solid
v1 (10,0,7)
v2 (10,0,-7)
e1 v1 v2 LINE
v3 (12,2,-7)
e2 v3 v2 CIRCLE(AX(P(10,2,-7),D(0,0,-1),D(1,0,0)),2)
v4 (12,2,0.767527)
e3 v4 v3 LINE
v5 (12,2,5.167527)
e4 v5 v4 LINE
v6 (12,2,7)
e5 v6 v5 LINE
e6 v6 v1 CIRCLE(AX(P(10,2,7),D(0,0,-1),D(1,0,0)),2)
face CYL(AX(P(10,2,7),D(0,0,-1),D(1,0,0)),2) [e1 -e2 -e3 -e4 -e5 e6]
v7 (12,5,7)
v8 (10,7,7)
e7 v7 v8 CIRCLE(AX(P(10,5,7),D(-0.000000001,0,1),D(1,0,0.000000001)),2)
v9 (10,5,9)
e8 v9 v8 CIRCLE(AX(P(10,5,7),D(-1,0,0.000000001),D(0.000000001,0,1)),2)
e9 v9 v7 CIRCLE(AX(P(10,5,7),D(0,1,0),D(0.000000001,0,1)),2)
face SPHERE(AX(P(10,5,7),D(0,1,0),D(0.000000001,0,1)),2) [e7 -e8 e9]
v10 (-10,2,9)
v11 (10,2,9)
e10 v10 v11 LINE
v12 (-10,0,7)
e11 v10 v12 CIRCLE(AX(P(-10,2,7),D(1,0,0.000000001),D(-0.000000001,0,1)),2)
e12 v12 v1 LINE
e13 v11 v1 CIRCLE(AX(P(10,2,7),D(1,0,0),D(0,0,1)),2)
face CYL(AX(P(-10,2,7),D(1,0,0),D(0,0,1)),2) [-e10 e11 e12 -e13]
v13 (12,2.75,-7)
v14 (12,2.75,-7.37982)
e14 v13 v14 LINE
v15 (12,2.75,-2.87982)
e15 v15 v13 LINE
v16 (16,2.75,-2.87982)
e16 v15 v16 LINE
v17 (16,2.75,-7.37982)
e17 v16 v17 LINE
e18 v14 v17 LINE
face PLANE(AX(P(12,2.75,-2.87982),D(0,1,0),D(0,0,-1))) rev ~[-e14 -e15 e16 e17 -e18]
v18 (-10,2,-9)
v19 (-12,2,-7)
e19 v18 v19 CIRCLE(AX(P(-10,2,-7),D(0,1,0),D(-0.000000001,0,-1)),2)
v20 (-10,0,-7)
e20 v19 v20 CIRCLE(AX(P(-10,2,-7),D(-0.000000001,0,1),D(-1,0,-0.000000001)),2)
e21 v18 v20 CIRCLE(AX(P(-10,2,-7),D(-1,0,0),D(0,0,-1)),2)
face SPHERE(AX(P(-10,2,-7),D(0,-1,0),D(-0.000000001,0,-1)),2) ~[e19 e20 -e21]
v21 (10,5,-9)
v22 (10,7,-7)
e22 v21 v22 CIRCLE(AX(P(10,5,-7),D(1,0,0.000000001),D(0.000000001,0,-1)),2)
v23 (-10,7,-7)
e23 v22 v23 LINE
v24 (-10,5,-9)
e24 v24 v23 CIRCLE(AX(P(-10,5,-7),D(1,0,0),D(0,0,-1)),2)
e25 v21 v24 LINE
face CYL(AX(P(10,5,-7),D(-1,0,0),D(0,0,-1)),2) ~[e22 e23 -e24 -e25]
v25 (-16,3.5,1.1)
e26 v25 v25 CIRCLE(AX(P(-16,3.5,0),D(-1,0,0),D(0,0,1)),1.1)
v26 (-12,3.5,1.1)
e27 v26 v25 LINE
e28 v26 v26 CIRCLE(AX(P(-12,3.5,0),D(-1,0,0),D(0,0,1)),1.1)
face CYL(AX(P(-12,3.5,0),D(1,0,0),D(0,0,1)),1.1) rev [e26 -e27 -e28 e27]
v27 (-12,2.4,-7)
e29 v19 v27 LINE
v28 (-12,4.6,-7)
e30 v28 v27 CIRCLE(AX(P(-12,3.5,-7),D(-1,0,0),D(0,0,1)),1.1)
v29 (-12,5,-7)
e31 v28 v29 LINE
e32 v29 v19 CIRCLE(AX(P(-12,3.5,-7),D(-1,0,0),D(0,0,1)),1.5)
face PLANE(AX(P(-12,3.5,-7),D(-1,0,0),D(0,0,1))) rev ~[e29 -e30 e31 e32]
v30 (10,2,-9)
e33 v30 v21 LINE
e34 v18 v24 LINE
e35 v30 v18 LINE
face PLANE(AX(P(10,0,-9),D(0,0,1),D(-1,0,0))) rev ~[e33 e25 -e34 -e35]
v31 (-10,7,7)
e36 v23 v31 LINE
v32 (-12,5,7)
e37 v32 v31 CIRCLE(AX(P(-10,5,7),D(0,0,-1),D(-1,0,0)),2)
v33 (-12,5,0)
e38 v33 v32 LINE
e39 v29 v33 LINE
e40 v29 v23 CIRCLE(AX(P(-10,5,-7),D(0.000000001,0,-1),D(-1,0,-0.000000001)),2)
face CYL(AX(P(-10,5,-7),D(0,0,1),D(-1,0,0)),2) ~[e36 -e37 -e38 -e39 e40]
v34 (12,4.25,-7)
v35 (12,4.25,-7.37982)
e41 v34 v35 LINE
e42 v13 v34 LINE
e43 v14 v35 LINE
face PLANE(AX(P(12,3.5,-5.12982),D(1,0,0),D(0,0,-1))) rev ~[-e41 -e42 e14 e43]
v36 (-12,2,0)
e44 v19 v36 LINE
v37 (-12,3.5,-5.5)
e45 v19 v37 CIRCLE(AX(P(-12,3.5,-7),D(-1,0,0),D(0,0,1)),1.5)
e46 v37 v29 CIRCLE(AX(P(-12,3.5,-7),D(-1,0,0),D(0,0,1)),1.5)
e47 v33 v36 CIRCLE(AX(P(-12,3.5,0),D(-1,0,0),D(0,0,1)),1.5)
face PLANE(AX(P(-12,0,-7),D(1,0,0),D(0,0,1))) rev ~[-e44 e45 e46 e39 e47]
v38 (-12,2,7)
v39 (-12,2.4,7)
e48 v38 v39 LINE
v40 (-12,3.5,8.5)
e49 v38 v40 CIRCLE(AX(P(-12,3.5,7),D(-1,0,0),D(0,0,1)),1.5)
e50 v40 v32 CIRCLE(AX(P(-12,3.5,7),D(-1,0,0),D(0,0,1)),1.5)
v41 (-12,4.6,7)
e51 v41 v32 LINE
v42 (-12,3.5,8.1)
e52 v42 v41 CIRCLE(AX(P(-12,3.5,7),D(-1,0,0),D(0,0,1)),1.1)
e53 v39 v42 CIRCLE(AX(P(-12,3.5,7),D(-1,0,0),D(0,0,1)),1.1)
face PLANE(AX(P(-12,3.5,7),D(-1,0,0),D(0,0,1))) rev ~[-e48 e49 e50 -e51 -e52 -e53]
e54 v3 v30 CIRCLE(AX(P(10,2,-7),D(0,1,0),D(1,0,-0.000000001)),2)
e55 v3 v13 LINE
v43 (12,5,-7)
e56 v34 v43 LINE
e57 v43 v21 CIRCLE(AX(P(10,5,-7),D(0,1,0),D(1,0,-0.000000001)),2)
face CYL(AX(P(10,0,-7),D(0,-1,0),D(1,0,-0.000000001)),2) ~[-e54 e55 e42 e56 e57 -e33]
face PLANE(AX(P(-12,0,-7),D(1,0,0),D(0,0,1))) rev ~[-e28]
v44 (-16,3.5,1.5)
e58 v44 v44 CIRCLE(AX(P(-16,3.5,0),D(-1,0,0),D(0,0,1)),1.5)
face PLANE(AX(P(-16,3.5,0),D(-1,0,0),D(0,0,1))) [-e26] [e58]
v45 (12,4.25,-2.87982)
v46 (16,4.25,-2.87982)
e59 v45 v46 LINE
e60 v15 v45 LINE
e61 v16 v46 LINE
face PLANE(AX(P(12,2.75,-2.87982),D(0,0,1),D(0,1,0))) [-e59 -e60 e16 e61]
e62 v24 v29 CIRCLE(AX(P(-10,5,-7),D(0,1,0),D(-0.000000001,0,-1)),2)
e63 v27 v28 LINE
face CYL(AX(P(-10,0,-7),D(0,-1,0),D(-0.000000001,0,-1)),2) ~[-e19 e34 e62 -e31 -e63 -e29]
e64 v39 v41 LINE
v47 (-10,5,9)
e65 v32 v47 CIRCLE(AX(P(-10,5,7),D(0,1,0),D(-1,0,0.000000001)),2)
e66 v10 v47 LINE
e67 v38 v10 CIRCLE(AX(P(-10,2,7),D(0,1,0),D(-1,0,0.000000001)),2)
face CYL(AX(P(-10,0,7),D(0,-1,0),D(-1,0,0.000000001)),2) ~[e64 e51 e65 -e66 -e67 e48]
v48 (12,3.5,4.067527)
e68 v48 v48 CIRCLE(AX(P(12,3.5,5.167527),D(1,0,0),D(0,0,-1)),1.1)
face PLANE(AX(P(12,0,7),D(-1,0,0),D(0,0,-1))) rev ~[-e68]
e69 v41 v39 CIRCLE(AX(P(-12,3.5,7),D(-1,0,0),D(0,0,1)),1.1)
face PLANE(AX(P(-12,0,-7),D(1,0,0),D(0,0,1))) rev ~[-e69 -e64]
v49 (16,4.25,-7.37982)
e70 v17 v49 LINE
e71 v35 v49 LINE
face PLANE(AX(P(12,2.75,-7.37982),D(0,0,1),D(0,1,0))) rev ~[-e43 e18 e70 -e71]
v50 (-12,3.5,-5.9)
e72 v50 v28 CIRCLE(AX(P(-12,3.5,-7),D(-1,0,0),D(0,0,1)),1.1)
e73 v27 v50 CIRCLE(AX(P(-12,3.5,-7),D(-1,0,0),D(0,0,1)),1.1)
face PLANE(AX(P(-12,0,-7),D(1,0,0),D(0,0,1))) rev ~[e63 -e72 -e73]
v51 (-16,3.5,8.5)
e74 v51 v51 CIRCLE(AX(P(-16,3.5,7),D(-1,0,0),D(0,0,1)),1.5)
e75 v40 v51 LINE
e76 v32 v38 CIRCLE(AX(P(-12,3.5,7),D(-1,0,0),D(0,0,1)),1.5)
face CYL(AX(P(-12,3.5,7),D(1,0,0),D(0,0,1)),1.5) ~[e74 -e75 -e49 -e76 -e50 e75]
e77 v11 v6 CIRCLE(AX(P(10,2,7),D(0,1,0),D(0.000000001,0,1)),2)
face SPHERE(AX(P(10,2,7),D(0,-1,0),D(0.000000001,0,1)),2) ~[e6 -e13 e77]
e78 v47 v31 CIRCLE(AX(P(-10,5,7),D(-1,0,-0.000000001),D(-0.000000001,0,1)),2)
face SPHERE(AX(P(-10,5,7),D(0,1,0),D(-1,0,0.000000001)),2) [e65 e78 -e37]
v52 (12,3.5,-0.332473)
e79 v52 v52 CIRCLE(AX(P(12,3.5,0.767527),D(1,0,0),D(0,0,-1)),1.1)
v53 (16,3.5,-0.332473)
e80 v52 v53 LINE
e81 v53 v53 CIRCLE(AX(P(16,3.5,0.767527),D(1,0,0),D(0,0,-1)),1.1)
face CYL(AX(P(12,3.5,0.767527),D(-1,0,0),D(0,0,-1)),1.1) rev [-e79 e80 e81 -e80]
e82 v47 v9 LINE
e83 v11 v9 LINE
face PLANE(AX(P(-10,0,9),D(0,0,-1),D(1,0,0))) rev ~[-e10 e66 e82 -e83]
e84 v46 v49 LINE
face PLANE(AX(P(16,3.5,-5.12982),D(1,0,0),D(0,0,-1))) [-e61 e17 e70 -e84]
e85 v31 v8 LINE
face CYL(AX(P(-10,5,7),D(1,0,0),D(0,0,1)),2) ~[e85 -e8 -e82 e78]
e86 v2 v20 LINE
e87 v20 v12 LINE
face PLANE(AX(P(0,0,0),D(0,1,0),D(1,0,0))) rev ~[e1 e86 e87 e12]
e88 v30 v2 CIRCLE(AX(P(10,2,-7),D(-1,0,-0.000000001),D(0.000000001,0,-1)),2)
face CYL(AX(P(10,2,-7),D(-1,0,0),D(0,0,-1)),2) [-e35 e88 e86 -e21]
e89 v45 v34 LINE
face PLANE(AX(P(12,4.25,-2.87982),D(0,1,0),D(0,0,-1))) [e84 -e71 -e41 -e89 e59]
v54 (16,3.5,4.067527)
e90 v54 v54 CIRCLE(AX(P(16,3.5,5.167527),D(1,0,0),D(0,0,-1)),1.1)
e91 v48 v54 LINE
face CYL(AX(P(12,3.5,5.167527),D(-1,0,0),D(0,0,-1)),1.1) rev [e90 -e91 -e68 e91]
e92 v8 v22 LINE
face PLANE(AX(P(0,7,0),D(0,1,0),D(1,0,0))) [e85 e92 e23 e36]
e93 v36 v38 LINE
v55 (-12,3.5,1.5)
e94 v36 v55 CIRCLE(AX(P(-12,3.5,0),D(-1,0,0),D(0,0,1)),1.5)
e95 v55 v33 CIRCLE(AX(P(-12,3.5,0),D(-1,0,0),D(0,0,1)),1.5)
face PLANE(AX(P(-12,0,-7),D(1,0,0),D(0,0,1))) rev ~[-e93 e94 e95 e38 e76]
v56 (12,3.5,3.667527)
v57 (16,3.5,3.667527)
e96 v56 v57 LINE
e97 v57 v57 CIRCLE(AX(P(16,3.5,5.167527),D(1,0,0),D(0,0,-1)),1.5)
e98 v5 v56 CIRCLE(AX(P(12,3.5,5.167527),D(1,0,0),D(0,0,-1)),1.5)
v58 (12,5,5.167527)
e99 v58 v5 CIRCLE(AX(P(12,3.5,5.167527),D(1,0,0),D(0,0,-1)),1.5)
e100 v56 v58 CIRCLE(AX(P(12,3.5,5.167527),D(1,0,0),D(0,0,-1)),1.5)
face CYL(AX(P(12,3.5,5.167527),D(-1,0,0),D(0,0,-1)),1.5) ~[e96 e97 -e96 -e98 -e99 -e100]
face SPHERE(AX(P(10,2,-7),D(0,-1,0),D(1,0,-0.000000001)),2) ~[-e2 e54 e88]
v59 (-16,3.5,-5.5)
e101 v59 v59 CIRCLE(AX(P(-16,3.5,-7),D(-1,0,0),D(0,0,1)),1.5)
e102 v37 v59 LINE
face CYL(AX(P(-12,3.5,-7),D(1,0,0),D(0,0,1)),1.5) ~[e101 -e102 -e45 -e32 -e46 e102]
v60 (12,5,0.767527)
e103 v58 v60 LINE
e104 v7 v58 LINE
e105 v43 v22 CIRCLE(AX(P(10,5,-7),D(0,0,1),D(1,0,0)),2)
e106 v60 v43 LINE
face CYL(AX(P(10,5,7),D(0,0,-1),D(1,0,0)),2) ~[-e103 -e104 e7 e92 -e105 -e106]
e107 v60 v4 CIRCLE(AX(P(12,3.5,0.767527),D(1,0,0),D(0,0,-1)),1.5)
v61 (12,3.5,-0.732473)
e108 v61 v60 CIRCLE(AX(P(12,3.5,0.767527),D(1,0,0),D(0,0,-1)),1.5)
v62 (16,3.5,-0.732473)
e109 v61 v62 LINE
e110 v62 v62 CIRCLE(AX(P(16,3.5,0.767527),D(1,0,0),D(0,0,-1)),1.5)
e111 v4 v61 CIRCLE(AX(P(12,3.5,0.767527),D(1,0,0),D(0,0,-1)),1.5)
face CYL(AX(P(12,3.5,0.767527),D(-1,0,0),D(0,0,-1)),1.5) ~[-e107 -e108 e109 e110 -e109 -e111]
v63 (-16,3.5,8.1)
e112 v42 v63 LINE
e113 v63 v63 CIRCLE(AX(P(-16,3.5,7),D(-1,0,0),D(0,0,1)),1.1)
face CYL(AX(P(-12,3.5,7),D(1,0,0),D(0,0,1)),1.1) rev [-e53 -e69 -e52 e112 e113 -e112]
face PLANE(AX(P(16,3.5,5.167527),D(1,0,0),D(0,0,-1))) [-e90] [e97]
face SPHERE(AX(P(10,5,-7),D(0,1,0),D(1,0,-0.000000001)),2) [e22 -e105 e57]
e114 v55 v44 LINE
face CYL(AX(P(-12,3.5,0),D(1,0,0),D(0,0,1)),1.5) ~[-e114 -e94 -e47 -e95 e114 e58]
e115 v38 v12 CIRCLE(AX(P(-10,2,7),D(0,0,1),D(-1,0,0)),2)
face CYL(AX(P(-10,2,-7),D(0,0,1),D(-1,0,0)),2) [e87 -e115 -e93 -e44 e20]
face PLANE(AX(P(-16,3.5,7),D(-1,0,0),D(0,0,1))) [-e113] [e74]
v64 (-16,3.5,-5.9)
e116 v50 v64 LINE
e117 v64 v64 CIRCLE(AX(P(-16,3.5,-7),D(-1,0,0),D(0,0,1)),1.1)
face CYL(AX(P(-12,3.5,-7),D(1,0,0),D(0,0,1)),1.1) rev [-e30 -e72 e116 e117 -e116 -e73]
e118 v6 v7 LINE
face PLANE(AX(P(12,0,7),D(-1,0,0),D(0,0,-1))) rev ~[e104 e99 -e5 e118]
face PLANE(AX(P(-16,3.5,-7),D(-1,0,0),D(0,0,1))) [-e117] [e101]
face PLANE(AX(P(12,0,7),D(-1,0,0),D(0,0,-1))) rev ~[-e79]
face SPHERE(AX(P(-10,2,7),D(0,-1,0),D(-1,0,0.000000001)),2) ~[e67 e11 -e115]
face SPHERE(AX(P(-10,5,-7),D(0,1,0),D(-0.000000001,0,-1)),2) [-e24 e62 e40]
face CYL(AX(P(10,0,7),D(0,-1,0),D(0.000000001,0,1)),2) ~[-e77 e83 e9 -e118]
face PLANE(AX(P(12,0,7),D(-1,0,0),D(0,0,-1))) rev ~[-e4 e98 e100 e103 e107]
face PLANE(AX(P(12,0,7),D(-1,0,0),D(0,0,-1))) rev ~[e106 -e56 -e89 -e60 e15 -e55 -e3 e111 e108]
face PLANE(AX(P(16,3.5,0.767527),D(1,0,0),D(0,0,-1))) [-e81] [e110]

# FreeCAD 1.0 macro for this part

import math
import FreeCAD as App
import Part
import Sketcher
Q = App.Units.Quantity


def edges_at(feature, points):
    """Names of the edges that pass closest to the given points."""
    edges = feature.Shape.Edges
    near = lambda p: min(range(len(edges)), key=lambda i: edges[i].distToShape(Part.Vertex(*p))[0])
    return sorted({f"Edge{near(p) + 1}" for p in points})

doc = App.newDocument("Part")
body = doc.addObject("PartDesign::Body", "Body")

# Sketch on XZ plane
sketch1 = body.newObject("Sketcher::SketchObject", "Sketch")
sketch1.AttachmentSupport = (doc.getObject("XZ_Plane"), [""])
sketch1.MapMode = "FlatFace"
sketch1.addGeometry([
    Part.LineSegment(App.Vector(-10, 9, 0), App.Vector(10, 9, 0)),  # 0
    Part.ArcOfCircle(Part.Circle(App.Vector(10, 7, 0), App.Vector(0, 0, 1), 2), math.radians(0), math.radians(90)),  # 1
    Part.LineSegment(App.Vector(12, 7, 0), App.Vector(12, -7, 0)),  # 2
    Part.ArcOfCircle(Part.Circle(App.Vector(10, -7, 0), App.Vector(0, 0, 1), 2), math.radians(-90), math.radians(0)),  # 3
    Part.LineSegment(App.Vector(10, -9, 0), App.Vector(-10, -9, 0)),  # 4
    Part.ArcOfCircle(Part.Circle(App.Vector(-10, -7, 0), App.Vector(0, 0, 1), 2), math.radians(-180), math.radians(-90)),  # 5
    Part.LineSegment(App.Vector(-12, -7, 0), App.Vector(-12, 7, 0)),  # 6
    Part.ArcOfCircle(Part.Circle(App.Vector(-10, 7, 0), App.Vector(0, 0, 1), 2), math.radians(90), math.radians(180)),  # 7
], False)
sketch1.addConstraint([
    Sketcher.Constraint("Tangent", 0, 2, 1, 2),
    Sketcher.Constraint("Tangent", 1, 1, 2, 1),
    Sketcher.Constraint("Tangent", 2, 2, 3, 2),
    Sketcher.Constraint("Tangent", 3, 1, 4, 1),
    Sketcher.Constraint("Tangent", 4, 2, 5, 2),
    Sketcher.Constraint("Tangent", 5, 1, 6, 1),
    Sketcher.Constraint("Tangent", 6, 2, 7, 2),
    Sketcher.Constraint("Tangent", 7, 1, 0, 1),
    Sketcher.Constraint("Horizontal", 0),
    Sketcher.Constraint("Vertical", 2),
    Sketcher.Constraint("Horizontal", 4),
    Sketcher.Constraint("Vertical", 6),
    Sketcher.Constraint("Equal", 1, 3),
    Sketcher.Constraint("Equal", 3, 5),
    Sketcher.Constraint("Equal", 5, 7),
    Sketcher.Constraint("Symmetric", 1, 3, 5, 3, -1, 1),
    Sketcher.Constraint("Radius", 1, Q("2 mm")),
    Sketcher.Constraint("DistanceX", 0, 1, 0, 2, Q("20 mm")),
    Sketcher.Constraint("DistanceY", 2, 2, 2, 1, Q("14 mm")),
])
pad1 = body.newObject("PartDesign::Pad", "Pad")
pad1.Profile = sketch1
pad1.Length = 7
pad1.Reversed = True
doc.recompute()

fillet = body.newObject("PartDesign::Fillet", "Fillet")
fillet.Base = (pad1, edges_at(pad1, [
    (12, 0, 0),
    (11.414, 0, 8.414),
    (0, 0, 9),
    (-11.414, 0, 8.414),
    (11.414, 7, 8.414),
    (12, 7, 0),
    (11.414, 7, -8.414),
    (0, 7, -9),
    (-11.414, 7, -8.414),
    (-12, 7, 0),
    (-11.414, 7, 8.414),
    (-12, 0, 0),
    (0, 7, 9),
    (-11.414, 0, -8.414),
    (0, 0, -9),
    (11.414, 0, -8.414),
]))
fillet.Radius = 2

# Sketch on YZ plane
sketch2 = body.newObject("Sketcher::SketchObject", "Sketch001")
sketch2.AttachmentSupport = (doc.getObject("YZ_Plane"), [""])
sketch2.MapMode = "FlatFace"
sketch2.AttachmentOffset = App.Placement(App.Vector(0, 0, -12), App.Rotation())
sketch2.addGeometry([
    Part.Circle(App.Vector(3.5, -7, 0), App.Vector(0, 0, 1), 1.5),  # 0
    Part.Circle(App.Vector(3.5, -7, 0), App.Vector(0, 0, 1), 1.1),  # 1
    Part.Circle(App.Vector(3.5, 0, 0), App.Vector(0, 0, 1), 1.5),  # 2
    Part.Circle(App.Vector(3.5, 0, 0), App.Vector(0, 0, 1), 1.1),  # 3
    Part.Circle(App.Vector(3.5, 7, 0), App.Vector(0, 0, 1), 1.5),  # 4
    Part.Circle(App.Vector(3.5, 7, 0), App.Vector(0, 0, 1), 1.1),  # 5
], False)
sketch2.addConstraint([
    Sketcher.Constraint("Coincident", 1, 3, 0, 3),
    Sketcher.Constraint("Coincident", 3, 3, 2, 3),
    Sketcher.Constraint("Coincident", 5, 3, 4, 3),
    Sketcher.Constraint("Equal", 0, 2),
    Sketcher.Constraint("Equal", 1, 3),
    Sketcher.Constraint("Equal", 2, 4),
    Sketcher.Constraint("Equal", 3, 5),
    Sketcher.Constraint("Symmetric", 0, 3, 4, 3, -1),
    Sketcher.Constraint("PointOnObject", 2, 3, -1),
    Sketcher.Constraint("Vertical", 1, 3, 2, 3),
    Sketcher.Constraint("Diameter", 0, Q("3 mm")),
    Sketcher.Constraint("Diameter", 1, Q("2.2 mm")),
    Sketcher.Constraint("DistanceY", 0, 3, -1, 1, Q("7 mm")),
    Sketcher.Constraint("DistanceX", -1, 1, 0, 3, Q("3.5 mm")),
])
pad2 = body.newObject("PartDesign::Pad", "Pad001")
pad2.Profile = sketch2
pad2.Length = 4
pad2.Reversed = True

# Sketch on YZ plane
sketch3 = body.newObject("Sketcher::SketchObject", "Sketch002")
sketch3.AttachmentSupport = (doc.getObject("YZ_Plane"), [""])
sketch3.MapMode = "FlatFace"
sketch3.AttachmentOffset = App.Placement(App.Vector(0, 0, 12), App.Rotation())
sketch3.addGeometry([
    Part.Circle(App.Vector(3.5, 5.2, 0), App.Vector(0, 0, 1), 1.5),  # 0
    Part.Circle(App.Vector(3.5, 5.2, 0), App.Vector(0, 0, 1), 1.1),  # 1
    Part.Circle(App.Vector(3.5, 0.8, 0), App.Vector(0, 0, 1), 1.5),  # 2
    Part.Circle(App.Vector(3.5, 0.8, 0), App.Vector(0, 0, 1), 1.1),  # 3
    Part.LineSegment(App.Vector(4.2, -2.9, 0), App.Vector(2.8, -2.9, 0)),  # 4
    Part.LineSegment(App.Vector(2.8, -2.9, 0), App.Vector(2.8, -7.4, 0)),  # 5
    Part.LineSegment(App.Vector(2.8, -7.4, 0), App.Vector(4.2, -7.4, 0)),  # 6
    Part.LineSegment(App.Vector(4.2, -7.4, 0), App.Vector(4.2, -2.9, 0)),  # 7
], False)
sketch3.addConstraint([
    Sketcher.Constraint("Coincident", 4, 2, 5, 1),
    Sketcher.Constraint("Coincident", 5, 2, 6, 1),
    Sketcher.Constraint("Coincident", 6, 2, 7, 1),
    Sketcher.Constraint("Coincident", 7, 2, 4, 1),
    Sketcher.Constraint("Horizontal", 4),
    Sketcher.Constraint("Vertical", 5),
    Sketcher.Constraint("Horizontal", 6),
    Sketcher.Constraint("Vertical", 7),
    Sketcher.Constraint("Coincident", 1, 3, 0, 3),
    Sketcher.Constraint("Coincident", 3, 3, 2, 3),
    Sketcher.Constraint("Equal", 0, 2),
    Sketcher.Constraint("Equal", 1, 3),
    Sketcher.Constraint("Vertical", 1, 3, 2, 3),
    Sketcher.Constraint("Diameter", 0, Q("3 mm")),
    Sketcher.Constraint("Diameter", 1, Q("2.2 mm")),
    Sketcher.Constraint("DistanceX", 4, 2, 4, 1, Q("1.5 mm")),
    Sketcher.Constraint("DistanceY", 5, 2, 5, 1, Q("4.5 mm")),
    Sketcher.Constraint("DistanceX", -1, 1, 0, 3, Q("3.5 mm")),
    Sketcher.Constraint("DistanceY", 2, 3, 0, 3, Q("4.4 mm")),
    Sketcher.Constraint("DistanceX", -1, 1, 4, 2, Q("2.75 mm")),
    Sketcher.Constraint("DistanceY", 4, 2, -1, 1, Q("2.87982 mm")),
    Sketcher.Constraint("DistanceY", -1, 1, 0, 3, Q("5.167527 mm")),
])
pad3 = body.newObject("PartDesign::Pad", "Pad002")
pad3.Profile = sketch3
pad3.Length = 4

doc.recompute()
